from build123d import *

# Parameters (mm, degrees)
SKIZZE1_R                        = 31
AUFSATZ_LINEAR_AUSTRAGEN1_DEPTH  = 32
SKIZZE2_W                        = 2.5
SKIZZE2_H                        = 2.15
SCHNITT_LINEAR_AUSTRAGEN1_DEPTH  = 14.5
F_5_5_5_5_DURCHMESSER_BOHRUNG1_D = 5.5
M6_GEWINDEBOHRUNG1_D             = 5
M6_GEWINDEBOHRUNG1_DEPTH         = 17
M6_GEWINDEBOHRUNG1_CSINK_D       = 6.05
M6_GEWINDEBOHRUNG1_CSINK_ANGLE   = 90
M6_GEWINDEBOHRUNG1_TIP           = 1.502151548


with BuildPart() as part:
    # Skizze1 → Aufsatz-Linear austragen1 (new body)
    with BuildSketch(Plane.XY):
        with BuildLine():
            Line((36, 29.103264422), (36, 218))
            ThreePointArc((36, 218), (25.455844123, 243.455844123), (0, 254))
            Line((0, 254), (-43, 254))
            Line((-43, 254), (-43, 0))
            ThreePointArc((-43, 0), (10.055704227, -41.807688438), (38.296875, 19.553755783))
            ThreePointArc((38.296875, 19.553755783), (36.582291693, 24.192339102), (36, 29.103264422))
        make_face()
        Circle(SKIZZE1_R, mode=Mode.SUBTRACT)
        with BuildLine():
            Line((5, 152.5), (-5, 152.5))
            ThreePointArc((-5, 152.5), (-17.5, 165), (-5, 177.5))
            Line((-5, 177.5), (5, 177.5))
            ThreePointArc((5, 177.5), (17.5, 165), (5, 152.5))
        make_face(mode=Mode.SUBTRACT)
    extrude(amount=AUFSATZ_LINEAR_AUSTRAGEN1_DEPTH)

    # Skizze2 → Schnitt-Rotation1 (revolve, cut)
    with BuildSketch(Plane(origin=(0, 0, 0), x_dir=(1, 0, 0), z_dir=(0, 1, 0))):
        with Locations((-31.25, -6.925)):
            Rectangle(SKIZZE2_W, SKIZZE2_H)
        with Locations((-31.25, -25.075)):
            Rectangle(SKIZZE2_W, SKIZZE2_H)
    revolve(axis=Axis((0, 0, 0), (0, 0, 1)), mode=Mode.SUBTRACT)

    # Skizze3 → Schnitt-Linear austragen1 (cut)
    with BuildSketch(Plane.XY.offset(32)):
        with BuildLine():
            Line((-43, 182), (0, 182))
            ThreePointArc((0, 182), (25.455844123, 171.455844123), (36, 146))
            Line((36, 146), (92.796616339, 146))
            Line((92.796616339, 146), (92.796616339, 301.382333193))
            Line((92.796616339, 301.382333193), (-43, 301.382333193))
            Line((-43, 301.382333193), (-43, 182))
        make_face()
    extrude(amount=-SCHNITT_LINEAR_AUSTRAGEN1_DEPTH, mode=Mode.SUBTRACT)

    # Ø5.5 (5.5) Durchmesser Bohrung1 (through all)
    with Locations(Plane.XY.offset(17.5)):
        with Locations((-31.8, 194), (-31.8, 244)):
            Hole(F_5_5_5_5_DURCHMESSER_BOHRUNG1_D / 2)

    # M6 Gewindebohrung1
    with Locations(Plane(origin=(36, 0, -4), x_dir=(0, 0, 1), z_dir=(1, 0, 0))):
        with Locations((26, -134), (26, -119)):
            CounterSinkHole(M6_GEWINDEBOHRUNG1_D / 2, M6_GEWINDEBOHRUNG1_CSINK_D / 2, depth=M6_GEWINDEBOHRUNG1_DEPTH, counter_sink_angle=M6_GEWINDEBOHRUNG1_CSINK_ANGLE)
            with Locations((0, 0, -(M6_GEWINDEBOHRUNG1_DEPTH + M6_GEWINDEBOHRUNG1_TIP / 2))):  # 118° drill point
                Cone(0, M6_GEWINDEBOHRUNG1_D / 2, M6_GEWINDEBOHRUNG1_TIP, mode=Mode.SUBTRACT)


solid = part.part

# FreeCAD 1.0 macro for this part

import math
import FreeCAD as App
import Part
import Sketcher
Q = App.Units.Quantity

doc = App.newDocument("Part")
body = doc.addObject("PartDesign::Body", "Body")

sketch1 = body.newObject("Sketcher::SketchObject", "Sketch")
sketch1.AttachmentSupport = (doc.getObject("XY_Plane"), [""])
sketch1.MapMode = "FlatFace"
sketch1.addGeometry([
    Part.LineSegment(App.Vector(36, 29.103264, 0), App.Vector(36, 218, 0)),
    Part.ArcOfCircle(Part.Circle(App.Vector(0, 218, 0), App.Vector(0, 0, 1), 36), math.radians(0), math.radians(90)),
    Part.LineSegment(App.Vector(0, 254, 0), App.Vector(-43, 254, 0)),
    Part.LineSegment(App.Vector(-43, 254, 0), App.Vector(-43, 0, 0)),
    Part.ArcOfCircle(Part.Circle(App.Vector(0, 0, 0), App.Vector(0, 0, 1), 43), math.radians(180), math.radians(387.048111)),
    Part.ArcOfCircle(Part.Circle(App.Vector(57, 29.103264, 0), App.Vector(0, 0, 1), 21), math.radians(180), math.radians(207.048111)),
    Part.Circle(App.Vector(0, 0, 0), App.Vector(0, 0, 1), 31),
    Part.ArcOfCircle(Part.Circle(App.Vector(5, 165, 0), App.Vector(0, 0, 1), 12.5), math.radians(-90), math.radians(90)),
    Part.LineSegment(App.Vector(5, 152.5, 0), App.Vector(-5, 152.5, 0)),
    Part.ArcOfCircle(Part.Circle(App.Vector(-5, 165, 0), App.Vector(0, 0, 1), 12.5), math.radians(90), math.radians(270)),
    Part.LineSegment(App.Vector(-5, 177.5, 0), App.Vector(5, 177.5, 0)),
], False)
sketch1.addConstraint([
    Sketcher.Constraint("Tangent", 0, 2, 1, 1),
    Sketcher.Constraint("Tangent", 1, 2, 2, 1),
    Sketcher.Constraint("Coincident", 2, 2, 3, 1),
    Sketcher.Constraint("Tangent", 3, 2, 4, 1),
    Sketcher.Constraint("Tangent", 4, 2, 5, 2),
    Sketcher.Constraint("Tangent", 5, 1, 0, 1),
    Sketcher.Constraint("Tangent", 7, 1, 8, 1),
    Sketcher.Constraint("Tangent", 8, 2, 9, 2),
    Sketcher.Constraint("Tangent", 9, 1, 10, 1),
    Sketcher.Constraint("Tangent", 10, 2, 7, 2),
    Sketcher.Constraint("Vertical", 0),
    Sketcher.Constraint("Horizontal", 2),
    Sketcher.Constraint("Vertical", 3),
    Sketcher.Constraint("Horizontal", 8),
    Sketcher.Constraint("Horizontal", 10),
    Sketcher.Constraint("Coincident", 4, 3, -1, 1),
    Sketcher.Constraint("Coincident", 6, 3, -1, 1),
    Sketcher.Constraint("PointOnObject", 1, 3, -2),
    Sketcher.Constraint("Diameter", 6, Q("62 mm")),
    Sketcher.Constraint("Radius", 1, Q("36 mm")),
    Sketcher.Constraint("Radius", 4, Q("43 mm")),
    Sketcher.Constraint("Radius", 5, Q("21 mm")),
    Sketcher.Constraint("Radius", 7, Q("12.5 mm")),
    Sketcher.Constraint("DistanceX", 8, 2, 8, 1, Q("10 mm")),
    Sketcher.Constraint("DistanceY", 3, 2, 3, 1, Q("254 mm")),
    Sketcher.Constraint("DistanceX", -1, 1, 7, 3, Q("5 mm")),
    Sketcher.Constraint("DistanceY", -1, 1, 7, 3, Q("165 mm")),
])
pad1 = body.newObject("PartDesign::Pad", "Pad")
pad1.Profile = sketch1
pad1.Length = 32

sketch2 = body.newObject("Sketcher::SketchObject", "Sketch001")
sketch2.AttachmentSupport = (doc.getObject("XZ_Plane"), [""])
sketch2.MapMode = "FlatFace"
sketch2.addGeometry([
    Part.LineSegment(App.Vector(-32.5, 5.85, 0), App.Vector(-32.5, 8, 0)),
    Part.LineSegment(App.Vector(-32.5, 8, 0), App.Vector(-30, 8, 0)),
    Part.LineSegment(App.Vector(-30, 8, 0), App.Vector(-30, 5.85, 0)),
    Part.LineSegment(App.Vector(-30, 5.85, 0), App.Vector(-32.5, 5.85, 0)),
    Part.LineSegment(App.Vector(-32.5, 24, 0), App.Vector(-32.5, 26.15, 0)),
    Part.LineSegment(App.Vector(-32.5, 26.15, 0), App.Vector(-30, 26.15, 0)),
    Part.LineSegment(App.Vector(-30, 26.15, 0), App.Vector(-30, 24, 0)),
    Part.LineSegment(App.Vector(-30, 24, 0), App.Vector(-32.5, 24, 0)),
], False)
sketch2.addConstraint([
    Sketcher.Constraint("Coincident", 0, 2, 1, 1),
    Sketcher.Constraint("Coincident", 1, 2, 2, 1),
    Sketcher.Constraint("Coincident", 2, 2, 3, 1),
    Sketcher.Constraint("Coincident", 3, 2, 0, 1),
    Sketcher.Constraint("Coincident", 4, 2, 5, 1),
    Sketcher.Constraint("Coincident", 5, 2, 6, 1),
    Sketcher.Constraint("Coincident", 6, 2, 7, 1),
    Sketcher.Constraint("Coincident", 7, 2, 4, 1),
    Sketcher.Constraint("Vertical", 0),
    Sketcher.Constraint("Horizontal", 1),
    Sketcher.Constraint("Vertical", 2),
    Sketcher.Constraint("Horizontal", 3),
    Sketcher.Constraint("Vertical", 4),
    Sketcher.Constraint("Horizontal", 5),
    Sketcher.Constraint("Vertical", 6),
    Sketcher.Constraint("Horizontal", 7),
    Sketcher.Constraint("Vertical", 3, 2, 4, 2),
    Sketcher.Constraint("Vertical", 2, 2, 5, 2),
    Sketcher.Constraint("Equal", 2, 4),
    Sketcher.Constraint("DistanceX", 1, 1, 1, 2, Q("2.5 mm")),
    Sketcher.Constraint("DistanceY", -1, 1, 0, 2, Q("8 mm")),
    Sketcher.Constraint("DistanceX", 1, 2, -1, 1, Q("30 mm")),
    Sketcher.Constraint("DistanceY", -1, 1, 6, 2, Q("24 mm")),
    Sketcher.Constraint("DistanceY", 0, 1, 0, 2, Q("2.15 mm")),
])
groove = body.newObject("PartDesign::Groove", "Groove")
groove.Profile = sketch2
groove.ReferenceAxis = (sketch2, ["V_Axis"])
groove.Angle = 360

sketch3 = body.newObject("Sketcher::SketchObject", "Sketch002")
sketch3.AttachmentSupport = (doc.getObject("XY_Plane"), [""])
sketch3.MapMode = "FlatFace"
sketch3.AttachmentOffset = App.Placement(App.Vector(0, 0, 32), App.Rotation())
sketch3.addGeometry([
    Part.LineSegment(App.Vector(-43, 182, 0), App.Vector(0, 182, 0)),
    Part.ArcOfCircle(Part.Circle(App.Vector(0, 146, 0), App.Vector(0, 0, 1), 36), math.radians(0), math.radians(90)),
    Part.LineSegment(App.Vector(36, 146, 0), App.Vector(92.796616, 146, 0)),
    Part.LineSegment(App.Vector(92.796616, 146, 0), App.Vector(92.796616, 301.382333, 0)),
    Part.LineSegment(App.Vector(92.796616, 301.382333, 0), App.Vector(-43, 301.382333, 0)),
    Part.LineSegment(App.Vector(-43, 301.382333, 0), App.Vector(-43, 182, 0)),
], False)
sketch3.addConstraint([
    Sketcher.Constraint("Tangent", 0, 2, 1, 2),
    Sketcher.Constraint("Coincident", 1, 1, 2, 1),
    Sketcher.Constraint("Coincident", 2, 2, 3, 1),
    Sketcher.Constraint("Coincident", 3, 2, 4, 1),
    Sketcher.Constraint("Coincident", 4, 2, 5, 1),
    Sketcher.Constraint("Coincident", 5, 2, 0, 1),
    Sketcher.Constraint("Horizontal", 0),
    Sketcher.Constraint("Horizontal", 2),
    Sketcher.Constraint("Vertical", 3),
    Sketcher.Constraint("Horizontal", 4),
    Sketcher.Constraint("Vertical", 5),
    Sketcher.Constraint("PointOnObject", 1, 3, -2),
    Sketcher.Constraint("Radius", 1, Q("36 mm")),
    Sketcher.Constraint("DistanceX", 0, 1, 0, 2, Q("43 mm")),
    Sketcher.Constraint("DistanceY", -1, 1, 1, 3, Q("146 mm")),
    Sketcher.Constraint("DistanceY", -1, 1, 1, 1, Q("146 mm")),
    Sketcher.Constraint("DistanceX", 2, 1, 2, 2, Q("56.796616 mm")),
    Sketcher.Constraint("DistanceY", 3, 1, 3, 2, Q("155.382333 mm")),
])
pocket1 = body.newObject("PartDesign::Pocket", "Pocket")
pocket1.Profile = sketch3
pocket1.Length = 14.5

sketch4 = body.newObject("Sketcher::SketchObject", "Sketch003")
sketch4.AttachmentSupport = (doc.getObject("XY_Plane"), [""])
sketch4.MapMode = "FlatFace"
sketch4.AttachmentOffset = App.Placement(App.Vector(0, 0, 17.5), App.Rotation())
sketch4.addGeometry([
    Part.Circle(App.Vector(-31.8, 194, 0), App.Vector(0, 0, 1), 2.75),
    Part.Circle(App.Vector(-31.8, 244, 0), App.Vector(0, 0, 1), 2.75),
], False)
sketch4.addConstraint([
    Sketcher.Constraint("Equal", 0, 1),
    Sketcher.Constraint("Vertical", 0, 3, 1, 3),
    Sketcher.Constraint("Diameter", 0, Q("5.5 mm")),
    Sketcher.Constraint("DistanceY", -1, 1, 0, 3, Q("194 mm")),
    Sketcher.Constraint("DistanceY", -1, 1, 1, 3, Q("244 mm")),
    Sketcher.Constraint("DistanceX", 0, 3, -1, 1, Q("31.8 mm")),
])
doc.recompute()
hole = body.newObject("PartDesign::Hole", "Hole")
hole.Profile = sketch4
hole.ThreadType = "None"
hole.Diameter = 5.5
hole.DepthType = "ThroughAll"

sketch5 = body.newObject("Sketcher::SketchObject", "Sketch004")
sketch5.AttachmentSupport = (doc.getObject("YZ_Plane"), [""])
sketch5.MapMode = "FlatFace"
sketch5.AttachmentOffset = App.Placement(App.Vector(0, 0, 36), App.Rotation())
sketch5.addGeometry([
    Part.Circle(App.Vector(134, 22, 0), App.Vector(0, 0, 1), 2.5),
    Part.Circle(App.Vector(119, 22, 0), App.Vector(0, 0, 1), 2.5),
], False)
sketch5.addConstraint([
    Sketcher.Constraint("Equal", 0, 1),
    Sketcher.Constraint("Horizontal", 0, 3, 1, 3),
    Sketcher.Constraint("Diameter", 0, Q("5 mm")),
    Sketcher.Constraint("DistanceX", -1, 1, 0, 3, Q("134 mm")),
    Sketcher.Constraint("DistanceY", -1, 1, 0, 3, Q("22 mm")),
    Sketcher.Constraint("DistanceX", -1, 1, 1, 3, Q("119 mm")),
])
doc.recompute()
hole2 = body.newObject("PartDesign::Hole", "Hole001")
hole2.Profile = sketch5
hole2.ThreadType = "None"
hole2.Diameter = 5
hole2.DepthType = "Dimension"
hole2.Depth = 17
hole2.DrillPoint = "Angled"
hole2.DrillPointAngle = 118
hole2.HoleCutType = "Countersink"
hole2.HoleCutDiameter = 6.05
hole2.HoleCutCountersinkAngle = 90

doc.recompute()
